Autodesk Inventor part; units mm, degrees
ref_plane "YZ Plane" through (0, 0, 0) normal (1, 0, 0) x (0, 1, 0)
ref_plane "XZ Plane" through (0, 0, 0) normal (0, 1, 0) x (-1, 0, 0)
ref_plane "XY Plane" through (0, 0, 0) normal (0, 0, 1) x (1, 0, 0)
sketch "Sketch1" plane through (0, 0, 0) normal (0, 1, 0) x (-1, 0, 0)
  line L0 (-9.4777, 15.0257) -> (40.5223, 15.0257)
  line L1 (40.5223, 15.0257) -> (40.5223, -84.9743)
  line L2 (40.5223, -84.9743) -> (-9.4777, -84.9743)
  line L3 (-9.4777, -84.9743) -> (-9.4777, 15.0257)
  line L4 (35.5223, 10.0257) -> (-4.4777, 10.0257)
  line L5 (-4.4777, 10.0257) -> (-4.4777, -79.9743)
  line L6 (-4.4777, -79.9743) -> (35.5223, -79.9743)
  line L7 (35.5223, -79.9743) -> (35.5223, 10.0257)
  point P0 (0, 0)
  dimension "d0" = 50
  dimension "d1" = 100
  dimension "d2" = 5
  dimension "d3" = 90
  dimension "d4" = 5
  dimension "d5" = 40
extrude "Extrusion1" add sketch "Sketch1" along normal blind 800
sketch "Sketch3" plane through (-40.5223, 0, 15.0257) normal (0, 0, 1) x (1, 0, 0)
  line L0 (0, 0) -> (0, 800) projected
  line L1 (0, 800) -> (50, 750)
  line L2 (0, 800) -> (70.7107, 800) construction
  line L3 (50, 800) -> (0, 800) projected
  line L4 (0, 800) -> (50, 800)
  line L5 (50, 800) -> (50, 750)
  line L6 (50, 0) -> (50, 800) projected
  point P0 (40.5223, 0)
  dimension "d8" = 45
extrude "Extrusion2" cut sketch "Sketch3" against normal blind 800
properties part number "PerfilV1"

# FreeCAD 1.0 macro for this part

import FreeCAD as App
import Part
import Sketcher
Q = App.Units.Quantity

doc = App.newDocument("Part")
body = doc.addObject("PartDesign::Body", "Body")

# Sketch on XZ plane
sketch1 = body.newObject("Sketcher::SketchObject", "Sketch")
sketch1.AttachmentSupport = (doc.getObject("XZ_Plane"), [""])
sketch1.MapMode = "FlatFace"
sketch1.addGeometry(Part.LineSegment(App.Vector(-41, 15, 0), App.Vector(9, 15, 0)), False)
sketch1.addGeometry(Part.LineSegment(App.Vector(9, 15, 0), App.Vector(9, -85, 0)), False)
sketch1.addGeometry(Part.LineSegment(App.Vector(9, -85, 0), App.Vector(-41, -85, 0)), False)
sketch1.addGeometry(Part.LineSegment(App.Vector(-41, -85, 0), App.Vector(-41, 15, 0)), False)
sketch1.addGeometry(Part.LineSegment(App.Vector(4, 10, 0), App.Vector(-36, 10, 0)), False)
sketch1.addGeometry(Part.LineSegment(App.Vector(-36, 10, 0), App.Vector(-36, -80, 0)), False)
sketch1.addGeometry(Part.LineSegment(App.Vector(-36, -80, 0), App.Vector(4, -80, 0)), False)
sketch1.addGeometry(Part.LineSegment(App.Vector(4, -80, 0), App.Vector(4, 10, 0)), False)
sketch1.addConstraint(Sketcher.Constraint("Coincident", 0, 2, 1, 1))
sketch1.addConstraint(Sketcher.Constraint("Coincident", 1, 2, 2, 1))
sketch1.addConstraint(Sketcher.Constraint("Coincident", 2, 2, 3, 1))
sketch1.addConstraint(Sketcher.Constraint("Coincident", 3, 2, 0, 1))
sketch1.addConstraint(Sketcher.Constraint("Coincident", 4, 2, 5, 1))
sketch1.addConstraint(Sketcher.Constraint("Coincident", 5, 2, 6, 1))
sketch1.addConstraint(Sketcher.Constraint("Coincident", 6, 2, 7, 1))
sketch1.addConstraint(Sketcher.Constraint("Coincident", 7, 2, 4, 1))
sketch1.addConstraint(Sketcher.Constraint("Horizontal", 0))
sketch1.addConstraint(Sketcher.Constraint("Vertical", 1))
sketch1.addConstraint(Sketcher.Constraint("Horizontal", 2))
sketch1.addConstraint(Sketcher.Constraint("Vertical", 3))
sketch1.addConstraint(Sketcher.Constraint("Horizontal", 4))
sketch1.addConstraint(Sketcher.Constraint("Vertical", 5))
sketch1.addConstraint(Sketcher.Constraint("Horizontal", 6))
sketch1.addConstraint(Sketcher.Constraint("Vertical", 7))
sketch1.addConstraint(Sketcher.Constraint("DistanceX", 0, 1, 0, 2, Q("50 mm")))
sketch1.addConstraint(Sketcher.Constraint("DistanceX", 4, 2, 4, 1, Q("40 mm")))
sketch1.addConstraint(Sketcher.Constraint("DistanceY", 1, 2, 1, 1, Q("100 mm")))
sketch1.addConstraint(Sketcher.Constraint("DistanceY", 5, 2, 5, 1, Q("90 mm")))
sketch1.addConstraint(Sketcher.Constraint("DistanceX", 3, 2, 4, 2, Q("5 mm")))
sketch1.addConstraint(Sketcher.Constraint("DistanceY", 4, 2, 3, 2, Q("5 mm")))
sketch1.addConstraint(Sketcher.Constraint("DistanceX", -1, 1, 0, 2, Q("9.4777 mm")))
sketch1.addConstraint(Sketcher.Constraint("DistanceY", -1, 1, 0, 2, Q("15.0257 mm")))
pad1 = body.newObject("PartDesign::Pad", "Pad")
pad1.Profile = sketch1
pad1.Length = 800
pad1.Reversed = True

# Sketch on XY plane
sketch2 = body.newObject("Sketcher::SketchObject", "Sketch001")
sketch2.AttachmentSupport = (doc.getObject("XY_Plane"), [""])
sketch2.MapMode = "FlatFace"
sketch2.AttachmentOffset = App.Placement(App.Vector(0, 0, 15.0257), App.Rotation())
sketch2.addGeometry(Part.LineSegment(App.Vector(9, 800, 0), App.Vector(-41, 800, 0)), False)
sketch2.addGeometry(Part.LineSegment(App.Vector(-41, 800, 0), App.Vector(9, 750, 0)), False)
sketch2.addGeometry(Part.LineSegment(App.Vector(9, 750, 0), App.Vector(9, 800, 0)), False)
sketch2.addConstraint(Sketcher.Constraint("Coincident", 0, 2, 1, 1))
sketch2.addConstraint(Sketcher.Constraint("Coincident", 1, 2, 2, 1))
sketch2.addConstraint(Sketcher.Constraint("Coincident", 2, 2, 0, 1))
sketch2.addConstraint(Sketcher.Constraint("Horizontal", 0))
sketch2.addConstraint(Sketcher.Constraint("Vertical", 2))
sketch2.addConstraint(Sketcher.Constraint("Equal", 0, 2))
sketch2.addConstraint(Sketcher.Constraint("DistanceX", 0, 2, 0, 1, Q("50 mm")))
sketch2.addConstraint(Sketcher.Constraint("DistanceY", -1, 1, 0, 2, Q("800 mm")))
sketch2.addConstraint(Sketcher.Constraint("DistanceX", 0, 2, -1, 1, Q("40.5223 mm")))
pocket1 = body.newObject("PartDesign::Pocket", "Pocket")
pocket1.Profile = sketch2
pocket1.Length = 800

doc.recompute()
